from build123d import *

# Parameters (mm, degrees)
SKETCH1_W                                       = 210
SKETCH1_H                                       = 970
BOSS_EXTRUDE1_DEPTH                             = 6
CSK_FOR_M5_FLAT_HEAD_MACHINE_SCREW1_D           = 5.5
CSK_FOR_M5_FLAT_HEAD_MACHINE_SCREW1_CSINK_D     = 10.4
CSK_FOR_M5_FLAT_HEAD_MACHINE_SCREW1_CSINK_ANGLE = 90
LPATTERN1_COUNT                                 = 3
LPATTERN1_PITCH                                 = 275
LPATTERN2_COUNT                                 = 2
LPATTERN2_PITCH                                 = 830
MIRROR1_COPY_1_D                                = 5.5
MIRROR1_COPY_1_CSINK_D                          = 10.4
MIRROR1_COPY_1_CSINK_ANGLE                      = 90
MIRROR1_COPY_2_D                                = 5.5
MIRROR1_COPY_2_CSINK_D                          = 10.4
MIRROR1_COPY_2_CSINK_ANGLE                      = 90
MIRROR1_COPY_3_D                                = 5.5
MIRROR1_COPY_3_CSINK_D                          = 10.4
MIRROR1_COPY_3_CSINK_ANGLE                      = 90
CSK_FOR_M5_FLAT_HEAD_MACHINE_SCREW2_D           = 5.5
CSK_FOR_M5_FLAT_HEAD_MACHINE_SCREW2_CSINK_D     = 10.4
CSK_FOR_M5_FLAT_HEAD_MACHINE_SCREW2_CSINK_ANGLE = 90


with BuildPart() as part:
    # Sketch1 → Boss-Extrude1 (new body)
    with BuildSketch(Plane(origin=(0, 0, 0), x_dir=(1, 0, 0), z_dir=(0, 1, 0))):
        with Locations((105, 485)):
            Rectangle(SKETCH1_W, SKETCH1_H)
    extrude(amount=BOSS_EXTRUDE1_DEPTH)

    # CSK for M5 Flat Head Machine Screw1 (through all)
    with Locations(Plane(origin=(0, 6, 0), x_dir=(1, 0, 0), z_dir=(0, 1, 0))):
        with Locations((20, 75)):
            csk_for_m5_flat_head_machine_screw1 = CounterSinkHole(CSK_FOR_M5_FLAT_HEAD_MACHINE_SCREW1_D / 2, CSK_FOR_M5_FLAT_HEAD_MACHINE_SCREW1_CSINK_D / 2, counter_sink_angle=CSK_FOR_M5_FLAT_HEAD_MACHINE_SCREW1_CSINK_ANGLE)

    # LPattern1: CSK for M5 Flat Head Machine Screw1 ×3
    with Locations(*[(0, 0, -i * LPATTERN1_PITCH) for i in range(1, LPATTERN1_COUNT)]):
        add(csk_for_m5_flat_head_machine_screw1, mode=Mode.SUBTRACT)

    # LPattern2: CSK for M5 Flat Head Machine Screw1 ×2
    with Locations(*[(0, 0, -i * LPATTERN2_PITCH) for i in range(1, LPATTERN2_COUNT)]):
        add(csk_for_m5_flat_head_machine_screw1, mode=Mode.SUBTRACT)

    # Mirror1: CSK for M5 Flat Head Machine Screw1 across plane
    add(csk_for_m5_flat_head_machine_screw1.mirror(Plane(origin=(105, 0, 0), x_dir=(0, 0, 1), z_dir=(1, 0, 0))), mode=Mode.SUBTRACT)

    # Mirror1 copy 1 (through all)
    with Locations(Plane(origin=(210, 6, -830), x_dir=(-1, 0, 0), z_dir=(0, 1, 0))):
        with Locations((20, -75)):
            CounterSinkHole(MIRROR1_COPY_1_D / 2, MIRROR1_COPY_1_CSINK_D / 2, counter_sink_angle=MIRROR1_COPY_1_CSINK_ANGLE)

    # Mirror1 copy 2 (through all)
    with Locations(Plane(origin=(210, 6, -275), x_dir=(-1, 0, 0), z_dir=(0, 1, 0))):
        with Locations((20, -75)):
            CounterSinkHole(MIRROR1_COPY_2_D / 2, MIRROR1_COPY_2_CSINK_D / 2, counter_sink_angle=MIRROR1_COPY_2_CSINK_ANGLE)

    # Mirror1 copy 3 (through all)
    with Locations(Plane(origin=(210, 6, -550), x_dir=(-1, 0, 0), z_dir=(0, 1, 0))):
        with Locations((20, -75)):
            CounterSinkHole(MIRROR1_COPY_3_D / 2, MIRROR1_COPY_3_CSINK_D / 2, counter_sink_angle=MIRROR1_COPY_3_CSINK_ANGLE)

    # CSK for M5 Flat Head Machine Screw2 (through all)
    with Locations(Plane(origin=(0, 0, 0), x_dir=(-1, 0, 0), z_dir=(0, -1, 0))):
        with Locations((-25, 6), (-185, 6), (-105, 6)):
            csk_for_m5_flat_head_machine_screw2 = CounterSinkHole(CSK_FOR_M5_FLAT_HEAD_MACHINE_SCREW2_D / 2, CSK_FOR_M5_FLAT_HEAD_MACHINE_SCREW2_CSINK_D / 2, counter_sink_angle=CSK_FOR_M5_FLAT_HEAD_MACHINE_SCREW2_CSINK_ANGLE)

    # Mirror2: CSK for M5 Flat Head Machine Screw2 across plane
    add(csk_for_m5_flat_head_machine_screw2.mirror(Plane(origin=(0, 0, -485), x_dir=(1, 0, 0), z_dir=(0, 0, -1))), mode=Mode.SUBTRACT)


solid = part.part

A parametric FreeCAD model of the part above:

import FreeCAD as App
import Part
import Sketcher
Q = App.Units.Quantity


def add_polygon(sketch, points):
    """Adds a closed chain of lines whose ends are joined by coincident constraints."""
    first, n = sketch.GeometryCount, len(points)
    for a, b in zip(points, points[1:] + points[:1]):
        sketch.addGeometry(Part.LineSegment(App.Vector(*a, 0), App.Vector(*b, 0)), False)
    for i in range(n):
        sketch.addConstraint(Sketcher.Constraint("Coincident", first + i, 2, first + (i + 1) % n, 1))

doc = App.newDocument("Part")
params = doc.addObject("Spreadsheet::Sheet", "Params")
for row, (alias, value) in enumerate([
    ("sketch1_width", "210 mm"),
    ("sketch1_height", "970 mm"),
    ("pad1_length", "6 mm"),
    ("sketch2_diameter", "5.5 mm"),
    ("hole_diameter", "5.5 mm"),
    ("hole_csink_diameter", "10.4 mm"),
    ("linearpattern_pitch", "275 mm"),
    ("linearpattern2_pitch", "830 mm"),
    ("sketch3_diameter", "5.5 mm"),
    ("hole2_diameter", "5.5 mm"),
    ("hole2_csink_diameter", "10.4 mm"),
    ("sketch4_diameter", "5.5 mm"),
    ("hole3_diameter", "5.5 mm"),
    ("hole3_csink_diameter", "10.4 mm"),
    ("sketch5_diameter", "5.5 mm"),
    ("hole4_diameter", "5.5 mm"),
    ("hole4_csink_diameter", "10.4 mm"),
    ("sketch6_diameter", "5.5 mm"),
    ("hole5_diameter", "5.5 mm"),
    ("hole5_csink_diameter", "10.4 mm"),
], start=1):
    params.set(f"A{row}", alias)
    params.set(f"B{row}", "=" + value)
    params.setAlias(f"B{row}", alias)

body = doc.addObject("PartDesign::Body", "Body")

# Sketch on XZ plane
sketch1 = body.newObject("Sketcher::SketchObject", "Sketch")
sketch1.AttachmentSupport = (doc.getObject("XZ_Plane"), [""])
sketch1.MapMode = "FlatFace"
add_polygon(sketch1, [(0, -970), (0, 0), (210, 0), (210, -970)])  # lines 0-3
sketch1.addConstraint(Sketcher.Constraint("Vertical", 0))
sketch1.addConstraint(Sketcher.Constraint("Horizontal", 1))
sketch1.addConstraint(Sketcher.Constraint("Vertical", 2))
sketch1.addConstraint(Sketcher.Constraint("Horizontal", 3))
sketch1.addConstraint(Sketcher.Constraint("Coincident", 0, 2, -1, 1))
sketch1.addConstraint(Sketcher.Constraint("DistanceX", 1, 1, 1, 2, Q("210 mm")))
sketch1.addConstraint(Sketcher.Constraint("DistanceY", 0, 1, 0, 2, Q("970 mm")))
sketch1.setExpression("Constraints[9]", "Params.sketch1_width")
sketch1.setExpression("Constraints[10]", "Params.sketch1_height")
pad1 = body.newObject("PartDesign::Pad", "Pad")
pad1.Profile = sketch1
pad1.setExpression("Length", "Params.pad1_length")
pad1.Reversed = True

# Sketch on XZ plane
sketch2 = body.newObject("Sketcher::SketchObject", "Sketch001")
sketch2.AttachmentSupport = (doc.getObject("XZ_Plane"), [""])
sketch2.MapMode = "FlatFace"
sketch2.AttachmentOffset = App.Placement(App.Vector(0, 0, -6), App.Rotation())
sketch2.addGeometry(Part.Circle(App.Vector(20, -75, 0), App.Vector(0, 0, 1), 2.8), False)
sketch2.addConstraint(Sketcher.Constraint("Diameter", 0, Q("5.5 mm")))
sketch2.addConstraint(Sketcher.Constraint("DistanceX", -1, 1, 0, 3, Q("20 mm")))
sketch2.addConstraint(Sketcher.Constraint("DistanceY", 0, 3, -1, 1, Q("75 mm")))
sketch2.setExpression("Constraints[0]", "Params.sketch2_diameter")
doc.recompute()
hole = body.newObject("PartDesign::Hole", "Hole")
hole.Profile = sketch2
hole.ThreadType = "None"
hole.setExpression("Diameter", "Params.hole_diameter")
hole.DepthType = "ThroughAll"
hole.HoleCutType = "Countersink"
hole.setExpression("HoleCutDiameter", "Params.hole_csink_diameter")
hole.HoleCutCountersinkAngle = 90
hole.Reversed = True
doc.recompute()

linearpattern = body.newObject("PartDesign::LinearPattern", "LinearPattern")
linearpattern.Originals = [hole]
linearpattern.Direction = (doc.getObject("Z_Axis"), [""])
linearpattern.Mode = "offset"
linearpattern.setExpression("Offset", "Params.linearpattern_pitch")
linearpattern.Occurrences = 3
linearpattern.Reversed = True
body.Tip = linearpattern
doc.recompute()

linearpattern2 = body.newObject("PartDesign::LinearPattern", "LinearPattern001")
linearpattern2.Originals = [hole]
linearpattern2.Direction = (doc.getObject("Z_Axis"), [""])
linearpattern2.Mode = "offset"
linearpattern2.setExpression("Offset", "Params.linearpattern2_pitch")
linearpattern2.Occurrences = 2
linearpattern2.Reversed = True
body.Tip = linearpattern2
doc.recompute()

datumplane = body.newObject("PartDesign::Plane", "DatumPlane")
datumplane.AttachmentSupport = (doc.getObject("YZ_Plane"), [""])
datumplane.MapMode = "FlatFace"
datumplane.AttachmentOffset = App.Placement(App.Vector(0, 0, 105), App.Rotation())
mirrored = body.newObject("PartDesign::Mirrored", "Mirrored")
mirrored.Originals = [hole]
mirrored.MirrorPlane = (datumplane, [""])
body.Tip = mirrored

# Sketch on XZ plane
sketch3 = body.newObject("Sketcher::SketchObject", "Sketch002")
sketch3.AttachmentSupport = (doc.getObject("XZ_Plane"), [""])
sketch3.MapMode = "FlatFace"
sketch3.AttachmentOffset = App.Placement(App.Vector(0, 0, -6), App.Rotation())
sketch3.addGeometry(Part.Circle(App.Vector(190, -905, 0), App.Vector(0, 0, 1), 2.8), False)
sketch3.addConstraint(Sketcher.Constraint("Diameter", 0, Q("5.5 mm")))
sketch3.addConstraint(Sketcher.Constraint("DistanceX", -1, 1, 0, 3, Q("190 mm")))
sketch3.addConstraint(Sketcher.Constraint("DistanceY", 0, 3, -1, 1, Q("905 mm")))
sketch3.setExpression("Constraints[0]", "Params.sketch3_diameter")
doc.recompute()
hole2 = body.newObject("PartDesign::Hole", "Hole001")
hole2.Profile = sketch3
hole2.ThreadType = "None"
hole2.setExpression("Diameter", "Params.hole2_diameter")
hole2.DepthType = "ThroughAll"
hole2.HoleCutType = "Countersink"
hole2.setExpression("HoleCutDiameter", "Params.hole2_csink_diameter")
hole2.HoleCutCountersinkAngle = 90
hole2.Reversed = True

# Sketch on XZ plane
sketch4 = body.newObject("Sketcher::SketchObject", "Sketch003")
sketch4.AttachmentSupport = (doc.getObject("XZ_Plane"), [""])
sketch4.MapMode = "FlatFace"
sketch4.AttachmentOffset = App.Placement(App.Vector(0, 0, -6), App.Rotation())
sketch4.addGeometry(Part.Circle(App.Vector(190, -350, 0), App.Vector(0, 0, 1), 2.8), False)
sketch4.addConstraint(Sketcher.Constraint("Diameter", 0, Q("5.5 mm")))
sketch4.addConstraint(Sketcher.Constraint("DistanceX", -1, 1, 0, 3, Q("190 mm")))
sketch4.addConstraint(Sketcher.Constraint("DistanceY", 0, 3, -1, 1, Q("350 mm")))
sketch4.setExpression("Constraints[0]", "Params.sketch4_diameter")
doc.recompute()
hole3 = body.newObject("PartDesign::Hole", "Hole002")
hole3.Profile = sketch4
hole3.ThreadType = "None"
hole3.setExpression("Diameter", "Params.hole3_diameter")
hole3.DepthType = "ThroughAll"
hole3.HoleCutType = "Countersink"
hole3.setExpression("HoleCutDiameter", "Params.hole3_csink_diameter")
hole3.HoleCutCountersinkAngle = 90
hole3.Reversed = True

# Sketch on XZ plane
sketch5 = body.newObject("Sketcher::SketchObject", "Sketch004")
sketch5.AttachmentSupport = (doc.getObject("XZ_Plane"), [""])
sketch5.MapMode = "FlatFace"
sketch5.AttachmentOffset = App.Placement(App.Vector(0, 0, -6), App.Rotation())
sketch5.addGeometry(Part.Circle(App.Vector(190, -625, 0), App.Vector(0, 0, 1), 2.8), False)
sketch5.addConstraint(Sketcher.Constraint("Diameter", 0, Q("5.5 mm")))
sketch5.addConstraint(Sketcher.Constraint("DistanceX", -1, 1, 0, 3, Q("190 mm")))
sketch5.addConstraint(Sketcher.Constraint("DistanceY", 0, 3, -1, 1, Q("625 mm")))
sketch5.setExpression("Constraints[0]", "Params.sketch5_diameter")
doc.recompute()
hole4 = body.newObject("PartDesign::Hole", "Hole003")
hole4.Profile = sketch5
hole4.ThreadType = "None"
hole4.setExpression("Diameter", "Params.hole4_diameter")
hole4.DepthType = "ThroughAll"
hole4.HoleCutType = "Countersink"
hole4.setExpression("HoleCutDiameter", "Params.hole4_csink_diameter")
hole4.HoleCutCountersinkAngle = 90
hole4.Reversed = True

# Sketch on XZ plane
sketch6 = body.newObject("Sketcher::SketchObject", "Sketch005")
sketch6.AttachmentSupport = (doc.getObject("XZ_Plane"), [""])
sketch6.MapMode = "FlatFace"
sketch6.addGeometry(Part.Circle(App.Vector(25, -6, 0), App.Vector(0, 0, 1), 2.8), False)
sketch6.addGeometry(Part.Circle(App.Vector(185, -6, 0), App.Vector(0, 0, 1), 2.8), False)
sketch6.addGeometry(Part.Circle(App.Vector(105, -6, 0), App.Vector(0, 0, 1), 2.8), False)
sketch6.addConstraint(Sketcher.Constraint("Equal", 0, 1))
sketch6.addConstraint(Sketcher.Constraint("Equal", 1, 2))
sketch6.addConstraint(Sketcher.Constraint("Horizontal", 0, 3, 1, 3))
sketch6.addConstraint(Sketcher.Constraint("Horizontal", 1, 3, 2, 3))
sketch6.addConstraint(Sketcher.Constraint("Diameter", 0, Q("5.5 mm")))
sketch6.addConstraint(Sketcher.Constraint("DistanceX", -1, 1, 0, 3, Q("25 mm")))
sketch6.addConstraint(Sketcher.Constraint("DistanceY", 0, 3, -1, 1, Q("6 mm")))
sketch6.addConstraint(Sketcher.Constraint("DistanceX", -1, 1, 1, 3, Q("185 mm")))
sketch6.addConstraint(Sketcher.Constraint("DistanceX", -1, 1, 2, 3, Q("105 mm")))
sketch6.setExpression("Constraints[4]", "Params.sketch6_diameter")
doc.recompute()
hole5 = body.newObject("PartDesign::Hole", "Hole004")
hole5.Profile = sketch6
hole5.ThreadType = "None"
hole5.setExpression("Diameter", "Params.hole5_diameter")
hole5.DepthType = "ThroughAll"
hole5.HoleCutType = "Countersink"
hole5.setExpression("HoleCutDiameter", "Params.hole5_csink_diameter")
hole5.HoleCutCountersinkAngle = 90
doc.recompute()

datumplane2 = body.newObject("PartDesign::Plane", "DatumPlane001")
datumplane2.AttachmentSupport = (doc.getObject("XY_Plane"), [""])
datumplane2.MapMode = "FlatFace"
datumplane2.AttachmentOffset = App.Placement(App.Vector(0, 0, -485), App.Rotation())
mirrored2 = body.newObject("PartDesign::Mirrored", "Mirrored001")
mirrored2.Originals = [hole5]
mirrored2.MirrorPlane = (datumplane2, [""])
body.Tip = mirrored2

doc.recompute()
